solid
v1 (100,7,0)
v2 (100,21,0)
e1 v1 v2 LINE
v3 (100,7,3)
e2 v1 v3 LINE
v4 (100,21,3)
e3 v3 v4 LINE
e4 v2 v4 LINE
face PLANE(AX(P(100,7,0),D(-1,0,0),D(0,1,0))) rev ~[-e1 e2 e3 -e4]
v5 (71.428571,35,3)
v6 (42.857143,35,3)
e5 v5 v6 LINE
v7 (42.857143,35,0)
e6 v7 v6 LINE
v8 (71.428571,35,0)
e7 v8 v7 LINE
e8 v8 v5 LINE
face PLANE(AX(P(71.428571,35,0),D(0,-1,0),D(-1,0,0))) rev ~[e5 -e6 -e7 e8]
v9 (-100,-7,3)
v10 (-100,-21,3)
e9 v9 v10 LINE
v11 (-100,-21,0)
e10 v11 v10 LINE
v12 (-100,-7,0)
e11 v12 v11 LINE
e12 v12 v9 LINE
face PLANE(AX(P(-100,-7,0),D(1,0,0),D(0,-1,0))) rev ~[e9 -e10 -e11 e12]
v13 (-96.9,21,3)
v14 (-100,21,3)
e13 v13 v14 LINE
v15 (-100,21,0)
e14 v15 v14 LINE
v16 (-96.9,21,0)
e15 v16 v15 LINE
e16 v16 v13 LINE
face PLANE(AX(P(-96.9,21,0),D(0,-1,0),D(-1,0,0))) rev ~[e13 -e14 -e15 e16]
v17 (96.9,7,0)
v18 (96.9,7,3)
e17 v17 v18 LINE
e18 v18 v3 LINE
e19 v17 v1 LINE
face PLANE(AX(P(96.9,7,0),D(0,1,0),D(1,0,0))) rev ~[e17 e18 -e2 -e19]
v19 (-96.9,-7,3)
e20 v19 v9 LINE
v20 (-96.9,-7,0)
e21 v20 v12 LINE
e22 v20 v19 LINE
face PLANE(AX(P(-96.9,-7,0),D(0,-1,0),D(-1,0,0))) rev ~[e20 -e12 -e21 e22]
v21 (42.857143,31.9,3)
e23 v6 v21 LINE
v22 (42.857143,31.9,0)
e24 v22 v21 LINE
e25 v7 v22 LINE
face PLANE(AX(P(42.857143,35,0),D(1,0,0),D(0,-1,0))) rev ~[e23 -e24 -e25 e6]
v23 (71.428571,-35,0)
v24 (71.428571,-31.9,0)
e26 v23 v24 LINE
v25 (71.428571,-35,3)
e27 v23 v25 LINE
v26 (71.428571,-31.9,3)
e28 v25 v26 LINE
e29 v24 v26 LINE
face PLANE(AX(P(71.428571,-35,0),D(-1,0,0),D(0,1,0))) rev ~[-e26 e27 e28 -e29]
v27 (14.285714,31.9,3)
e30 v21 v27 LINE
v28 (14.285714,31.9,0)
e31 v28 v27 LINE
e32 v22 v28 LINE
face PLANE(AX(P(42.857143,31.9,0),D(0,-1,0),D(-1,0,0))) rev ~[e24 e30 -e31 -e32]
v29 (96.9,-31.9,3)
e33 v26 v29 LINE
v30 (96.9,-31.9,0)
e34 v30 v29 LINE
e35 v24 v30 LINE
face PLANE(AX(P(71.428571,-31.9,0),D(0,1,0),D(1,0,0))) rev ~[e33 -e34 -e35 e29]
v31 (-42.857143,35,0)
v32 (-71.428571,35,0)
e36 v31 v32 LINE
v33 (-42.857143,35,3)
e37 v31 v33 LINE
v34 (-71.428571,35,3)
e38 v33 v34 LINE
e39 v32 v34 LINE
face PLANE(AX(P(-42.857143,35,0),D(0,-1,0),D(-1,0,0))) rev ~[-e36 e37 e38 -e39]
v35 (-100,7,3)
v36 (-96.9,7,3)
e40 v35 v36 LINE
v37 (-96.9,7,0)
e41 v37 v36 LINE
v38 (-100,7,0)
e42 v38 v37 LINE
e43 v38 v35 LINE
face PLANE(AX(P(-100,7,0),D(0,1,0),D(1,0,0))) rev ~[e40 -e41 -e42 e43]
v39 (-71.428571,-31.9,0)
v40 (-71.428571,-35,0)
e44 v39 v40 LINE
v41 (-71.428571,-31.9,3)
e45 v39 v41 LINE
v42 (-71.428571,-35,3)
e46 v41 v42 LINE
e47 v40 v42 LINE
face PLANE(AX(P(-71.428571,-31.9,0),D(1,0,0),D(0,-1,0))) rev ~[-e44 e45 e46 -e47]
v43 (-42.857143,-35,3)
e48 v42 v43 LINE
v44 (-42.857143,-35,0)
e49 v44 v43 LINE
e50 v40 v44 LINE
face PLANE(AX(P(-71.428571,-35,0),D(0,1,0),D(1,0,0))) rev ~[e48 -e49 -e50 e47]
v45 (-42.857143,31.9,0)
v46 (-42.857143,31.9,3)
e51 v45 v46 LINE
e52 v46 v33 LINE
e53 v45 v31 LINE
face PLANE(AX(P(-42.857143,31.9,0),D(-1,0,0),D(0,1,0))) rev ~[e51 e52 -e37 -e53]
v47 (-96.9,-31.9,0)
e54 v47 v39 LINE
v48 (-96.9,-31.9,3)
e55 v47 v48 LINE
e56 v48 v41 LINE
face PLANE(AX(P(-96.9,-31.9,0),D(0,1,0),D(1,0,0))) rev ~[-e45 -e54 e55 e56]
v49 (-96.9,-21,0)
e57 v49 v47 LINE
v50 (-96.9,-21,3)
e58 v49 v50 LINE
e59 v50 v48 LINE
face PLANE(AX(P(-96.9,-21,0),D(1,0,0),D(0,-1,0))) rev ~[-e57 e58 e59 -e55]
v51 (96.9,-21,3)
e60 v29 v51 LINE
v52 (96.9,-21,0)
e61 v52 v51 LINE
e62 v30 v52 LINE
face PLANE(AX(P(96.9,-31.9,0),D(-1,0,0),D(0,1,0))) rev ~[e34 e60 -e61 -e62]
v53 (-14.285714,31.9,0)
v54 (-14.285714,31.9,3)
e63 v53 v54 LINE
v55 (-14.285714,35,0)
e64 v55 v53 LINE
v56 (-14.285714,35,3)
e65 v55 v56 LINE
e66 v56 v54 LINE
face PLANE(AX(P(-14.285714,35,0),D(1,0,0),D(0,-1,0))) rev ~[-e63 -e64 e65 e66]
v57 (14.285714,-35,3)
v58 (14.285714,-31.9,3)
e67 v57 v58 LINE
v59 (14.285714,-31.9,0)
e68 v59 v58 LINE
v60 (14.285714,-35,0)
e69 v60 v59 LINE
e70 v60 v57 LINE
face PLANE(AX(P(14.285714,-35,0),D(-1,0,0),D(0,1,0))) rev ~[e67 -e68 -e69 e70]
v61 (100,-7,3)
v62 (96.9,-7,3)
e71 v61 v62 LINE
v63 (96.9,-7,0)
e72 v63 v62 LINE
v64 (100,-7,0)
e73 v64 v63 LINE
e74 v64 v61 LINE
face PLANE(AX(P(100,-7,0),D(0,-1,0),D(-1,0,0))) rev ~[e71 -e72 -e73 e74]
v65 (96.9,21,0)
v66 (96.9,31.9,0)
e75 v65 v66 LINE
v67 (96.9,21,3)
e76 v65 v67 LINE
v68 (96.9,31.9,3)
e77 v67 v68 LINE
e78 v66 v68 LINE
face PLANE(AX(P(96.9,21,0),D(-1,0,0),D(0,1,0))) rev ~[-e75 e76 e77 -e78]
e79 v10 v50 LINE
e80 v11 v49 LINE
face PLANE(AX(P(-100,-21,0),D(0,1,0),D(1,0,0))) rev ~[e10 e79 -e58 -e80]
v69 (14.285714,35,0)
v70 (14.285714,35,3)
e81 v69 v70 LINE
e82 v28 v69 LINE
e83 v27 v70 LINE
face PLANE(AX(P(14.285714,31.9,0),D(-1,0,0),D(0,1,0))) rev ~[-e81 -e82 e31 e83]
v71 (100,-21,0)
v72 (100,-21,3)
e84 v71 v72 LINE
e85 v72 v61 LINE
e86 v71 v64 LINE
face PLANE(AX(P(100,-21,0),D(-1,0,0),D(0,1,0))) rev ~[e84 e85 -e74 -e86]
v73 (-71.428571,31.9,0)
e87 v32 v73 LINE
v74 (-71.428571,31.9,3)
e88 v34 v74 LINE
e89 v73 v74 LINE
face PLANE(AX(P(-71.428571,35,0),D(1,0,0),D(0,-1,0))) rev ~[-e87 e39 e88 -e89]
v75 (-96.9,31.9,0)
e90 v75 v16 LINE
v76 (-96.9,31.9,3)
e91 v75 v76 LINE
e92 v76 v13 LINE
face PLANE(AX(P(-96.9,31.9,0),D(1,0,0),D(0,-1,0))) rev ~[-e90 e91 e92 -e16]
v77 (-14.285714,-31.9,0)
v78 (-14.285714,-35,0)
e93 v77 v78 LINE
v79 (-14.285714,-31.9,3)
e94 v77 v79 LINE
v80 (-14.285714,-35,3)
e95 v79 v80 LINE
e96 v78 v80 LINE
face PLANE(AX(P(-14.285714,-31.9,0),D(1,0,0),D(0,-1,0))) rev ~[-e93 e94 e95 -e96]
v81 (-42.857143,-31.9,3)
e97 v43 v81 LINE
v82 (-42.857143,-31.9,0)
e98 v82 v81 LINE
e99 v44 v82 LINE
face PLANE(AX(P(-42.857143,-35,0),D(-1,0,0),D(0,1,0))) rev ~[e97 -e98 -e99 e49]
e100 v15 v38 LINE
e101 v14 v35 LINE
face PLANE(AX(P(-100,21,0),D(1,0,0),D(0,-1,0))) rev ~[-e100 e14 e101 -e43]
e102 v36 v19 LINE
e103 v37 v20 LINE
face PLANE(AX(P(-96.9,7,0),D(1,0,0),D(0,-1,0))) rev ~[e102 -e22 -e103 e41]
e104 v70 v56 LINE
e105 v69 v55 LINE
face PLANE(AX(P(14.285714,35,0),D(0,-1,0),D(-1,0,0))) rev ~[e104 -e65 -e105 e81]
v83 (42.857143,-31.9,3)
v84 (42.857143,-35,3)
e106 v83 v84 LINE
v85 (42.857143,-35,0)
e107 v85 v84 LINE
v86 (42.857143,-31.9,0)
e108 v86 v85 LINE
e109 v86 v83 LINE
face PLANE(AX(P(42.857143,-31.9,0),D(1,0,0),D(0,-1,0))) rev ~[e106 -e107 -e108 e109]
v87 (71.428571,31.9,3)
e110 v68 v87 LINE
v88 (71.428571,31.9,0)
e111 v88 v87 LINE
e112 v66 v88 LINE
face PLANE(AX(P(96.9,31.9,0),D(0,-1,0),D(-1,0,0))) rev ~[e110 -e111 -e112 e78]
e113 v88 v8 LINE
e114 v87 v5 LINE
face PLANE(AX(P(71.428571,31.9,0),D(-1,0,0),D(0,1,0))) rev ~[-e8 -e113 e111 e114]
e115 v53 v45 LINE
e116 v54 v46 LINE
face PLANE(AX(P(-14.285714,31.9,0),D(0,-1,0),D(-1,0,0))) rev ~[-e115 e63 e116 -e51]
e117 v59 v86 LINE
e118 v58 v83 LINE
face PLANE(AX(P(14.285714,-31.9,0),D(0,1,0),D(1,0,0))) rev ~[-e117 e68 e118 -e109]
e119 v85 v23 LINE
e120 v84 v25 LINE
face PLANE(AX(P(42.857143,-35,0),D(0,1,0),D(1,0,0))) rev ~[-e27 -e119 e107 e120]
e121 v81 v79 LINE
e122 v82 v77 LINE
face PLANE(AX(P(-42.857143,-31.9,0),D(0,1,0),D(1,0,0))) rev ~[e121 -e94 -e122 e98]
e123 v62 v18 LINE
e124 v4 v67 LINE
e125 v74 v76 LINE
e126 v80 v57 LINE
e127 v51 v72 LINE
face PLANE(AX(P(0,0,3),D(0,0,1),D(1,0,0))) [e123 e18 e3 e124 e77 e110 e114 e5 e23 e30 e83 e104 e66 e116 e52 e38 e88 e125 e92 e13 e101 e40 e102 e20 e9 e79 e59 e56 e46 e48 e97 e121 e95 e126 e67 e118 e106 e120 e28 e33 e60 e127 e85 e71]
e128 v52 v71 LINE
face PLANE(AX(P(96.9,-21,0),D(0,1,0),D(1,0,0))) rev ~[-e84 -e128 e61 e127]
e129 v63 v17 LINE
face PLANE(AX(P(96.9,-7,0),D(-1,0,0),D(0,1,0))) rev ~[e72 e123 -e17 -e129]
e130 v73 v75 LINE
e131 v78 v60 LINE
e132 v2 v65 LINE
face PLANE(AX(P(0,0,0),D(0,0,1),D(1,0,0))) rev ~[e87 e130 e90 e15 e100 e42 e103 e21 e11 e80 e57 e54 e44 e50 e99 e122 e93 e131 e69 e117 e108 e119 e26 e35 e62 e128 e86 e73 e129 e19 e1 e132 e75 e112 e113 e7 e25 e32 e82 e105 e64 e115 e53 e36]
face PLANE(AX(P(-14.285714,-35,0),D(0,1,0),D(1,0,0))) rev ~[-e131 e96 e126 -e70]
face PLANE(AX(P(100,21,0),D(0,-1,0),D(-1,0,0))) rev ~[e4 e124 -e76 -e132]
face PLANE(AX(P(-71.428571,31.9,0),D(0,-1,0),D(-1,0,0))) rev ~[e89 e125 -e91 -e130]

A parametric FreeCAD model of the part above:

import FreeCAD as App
import Part
import Sketcher
from FreeCAD import Vector
Q = App.Units.Quantity

doc = App.newDocument("Part")
params = doc.addObject("Spreadsheet::Sheet", "Params")
for row, (alias, value) in enumerate([
    ("sketch1_height", "14 mm"),
    ("sketch1_width", "3.1 mm"),
    ("sketch1_height2", "10.9 mm"),
    ("pad1_length", "3 mm"),
], start=1):
    params.set(f"A{row}", alias)
    params.set(f"B{row}", "=" + value)
    params.setAlias(f"B{row}", alias)

body = doc.addObject("PartDesign::Body", "Body")

# Sketch on XY plane
sketch1 = body.newObject("Sketcher::SketchObject", "Sketch")
sketch1.AttachmentSupport = (doc.getObject("XY_Plane"), [""])
sketch1.MapMode = "FlatFace"
sketch1.addGeometry(Part.LineSegment(Vector(-71.4, -31.9, 0), Vector(-71.4, -35, 0)), False)
sketch1.addGeometry(Part.LineSegment(Vector(-71.4, -35, 0), Vector(-42.9, -35, 0)), False)
sketch1.addGeometry(Part.LineSegment(Vector(-42.9, -35, 0), Vector(-42.9, -31.9, 0)), False)
sketch1.addGeometry(Part.LineSegment(Vector(-42.9, -31.9, 0), Vector(-14.3, -31.9, 0)), False)
sketch1.addGeometry(Part.LineSegment(Vector(-14.3, -31.9, 0), Vector(-14.3, -35, 0)), False)
sketch1.addGeometry(Part.LineSegment(Vector(-14.3, -35, 0), Vector(14.3, -35, 0)), False)
sketch1.addGeometry(Part.LineSegment(Vector(14.3, -35, 0), Vector(14.3, -31.9, 0)), False)
sketch1.addGeometry(Part.LineSegment(Vector(14.3, -31.9, 0), Vector(42.9, -31.9, 0)), False)
sketch1.addGeometry(Part.LineSegment(Vector(42.9, -31.9, 0), Vector(42.9, -35, 0)), False)
sketch1.addGeometry(Part.LineSegment(Vector(42.9, -35, 0), Vector(71.4, -35, 0)), False)
sketch1.addGeometry(Part.LineSegment(Vector(71.4, -35, 0), Vector(71.4, -31.9, 0)), False)
sketch1.addGeometry(Part.LineSegment(Vector(71.4, -31.9, 0), Vector(96.9, -31.9, 0)), False)
sketch1.addGeometry(Part.LineSegment(Vector(96.9, -31.9, 0), Vector(96.9, -21, 0)), False)
sketch1.addGeometry(Part.LineSegment(Vector(96.9, -21, 0), Vector(100, -21, 0)), False)
sketch1.addGeometry(Part.LineSegment(Vector(100, -21, 0), Vector(100, -7, 0)), False)
sketch1.addGeometry(Part.LineSegment(Vector(100, -7, 0), Vector(96.9, -7, 0)), False)
sketch1.addGeometry(Part.LineSegment(Vector(96.9, -7, 0), Vector(96.9, 7, 0)), False)
sketch1.addGeometry(Part.LineSegment(Vector(96.9, 7, 0), Vector(100, 7, 0)), False)
sketch1.addGeometry(Part.LineSegment(Vector(100, 7, 0), Vector(100, 21, 0)), False)
sketch1.addGeometry(Part.LineSegment(Vector(100, 21, 0), Vector(96.9, 21, 0)), False)
sketch1.addGeometry(Part.LineSegment(Vector(96.9, 21, 0), Vector(96.9, 31.9, 0)), False)
sketch1.addGeometry(Part.LineSegment(Vector(96.9, 31.9, 0), Vector(71.4, 31.9, 0)), False)
sketch1.addGeometry(Part.LineSegment(Vector(71.4, 31.9, 0), Vector(71.4, 35, 0)), False)
sketch1.addGeometry(Part.LineSegment(Vector(71.4, 35, 0), Vector(42.9, 35, 0)), False)
sketch1.addGeometry(Part.LineSegment(Vector(42.9, 35, 0), Vector(42.9, 31.9, 0)), False)
sketch1.addGeometry(Part.LineSegment(Vector(42.9, 31.9, 0), Vector(14.3, 31.9, 0)), False)
sketch1.addGeometry(Part.LineSegment(Vector(14.3, 31.9, 0), Vector(14.3, 35, 0)), False)
sketch1.addGeometry(Part.LineSegment(Vector(14.3, 35, 0), Vector(-14.3, 35, 0)), False)
sketch1.addGeometry(Part.LineSegment(Vector(-14.3, 35, 0), Vector(-14.3, 31.9, 0)), False)
sketch1.addGeometry(Part.LineSegment(Vector(-14.3, 31.9, 0), Vector(-42.9, 31.9, 0)), False)
sketch1.addGeometry(Part.LineSegment(Vector(-42.9, 31.9, 0), Vector(-42.9, 35, 0)), False)
sketch1.addGeometry(Part.LineSegment(Vector(-42.9, 35, 0), Vector(-71.4, 35, 0)), False)
sketch1.addGeometry(Part.LineSegment(Vector(-71.4, 35, 0), Vector(-71.4, 31.9, 0)), False)
sketch1.addGeometry(Part.LineSegment(Vector(-71.4, 31.9, 0), Vector(-96.9, 31.9, 0)), False)
sketch1.addGeometry(Part.LineSegment(Vector(-96.9, 31.9, 0), Vector(-96.9, 21, 0)), False)
sketch1.addGeometry(Part.LineSegment(Vector(-96.9, 21, 0), Vector(-100, 21, 0)), False)
sketch1.addGeometry(Part.LineSegment(Vector(-100, 21, 0), Vector(-100, 7, 0)), False)
sketch1.addGeometry(Part.LineSegment(Vector(-100, 7, 0), Vector(-96.9, 7, 0)), False)
sketch1.addGeometry(Part.LineSegment(Vector(-96.9, 7, 0), Vector(-96.9, -7, 0)), False)
sketch1.addGeometry(Part.LineSegment(Vector(-96.9, -7, 0), Vector(-100, -7, 0)), False)
sketch1.addGeometry(Part.LineSegment(Vector(-100, -7, 0), Vector(-100, -21, 0)), False)
sketch1.addGeometry(Part.LineSegment(Vector(-100, -21, 0), Vector(-96.9, -21, 0)), False)
sketch1.addGeometry(Part.LineSegment(Vector(-96.9, -21, 0), Vector(-96.9, -31.9, 0)), False)
sketch1.addGeometry(Part.LineSegment(Vector(-96.9, -31.9, 0), Vector(-71.4, -31.9, 0)), False)
sketch1.addConstraint(Sketcher.Constraint("Coincident", 0, 2, 1, 1))
sketch1.addConstraint(Sketcher.Constraint("Coincident", 1, 2, 2, 1))
sketch1.addConstraint(Sketcher.Constraint("Coincident", 2, 2, 3, 1))
sketch1.addConstraint(Sketcher.Constraint("Coincident", 3, 2, 4, 1))
sketch1.addConstraint(Sketcher.Constraint("Coincident", 4, 2, 5, 1))
sketch1.addConstraint(Sketcher.Constraint("Coincident", 5, 2, 6, 1))
sketch1.addConstraint(Sketcher.Constraint("Coincident", 6, 2, 7, 1))
sketch1.addConstraint(Sketcher.Constraint("Coincident", 7, 2, 8, 1))
sketch1.addConstraint(Sketcher.Constraint("Coincident", 8, 2, 9, 1))
sketch1.addConstraint(Sketcher.Constraint("Coincident", 9, 2, 10, 1))
sketch1.addConstraint(Sketcher.Constraint("Coincident", 10, 2, 11, 1))
sketch1.addConstraint(Sketcher.Constraint("Coincident", 11, 2, 12, 1))
sketch1.addConstraint(Sketcher.Constraint("Coincident", 12, 2, 13, 1))
sketch1.addConstraint(Sketcher.Constraint("Coincident", 13, 2, 14, 1))
sketch1.addConstraint(Sketcher.Constraint("Coincident", 14, 2, 15, 1))
sketch1.addConstraint(Sketcher.Constraint("Coincident", 15, 2, 16, 1))
sketch1.addConstraint(Sketcher.Constraint("Coincident", 16, 2, 17, 1))
sketch1.addConstraint(Sketcher.Constraint("Coincident", 17, 2, 18, 1))
sketch1.addConstraint(Sketcher.Constraint("Coincident", 18, 2, 19, 1))
sketch1.addConstraint(Sketcher.Constraint("Coincident", 19, 2, 20, 1))
sketch1.addConstraint(Sketcher.Constraint("Coincident", 20, 2, 21, 1))
sketch1.addConstraint(Sketcher.Constraint("Coincident", 21, 2, 22, 1))
sketch1.addConstraint(Sketcher.Constraint("Coincident", 22, 2, 23, 1))
sketch1.addConstraint(Sketcher.Constraint("Coincident", 23, 2, 24, 1))
sketch1.addConstraint(Sketcher.Constraint("Coincident", 24, 2, 25, 1))
sketch1.addConstraint(Sketcher.Constraint("Coincident", 25, 2, 26, 1))
sketch1.addConstraint(Sketcher.Constraint("Coincident", 26, 2, 27, 1))
sketch1.addConstraint(Sketcher.Constraint("Coincident", 27, 2, 28, 1))
sketch1.addConstraint(Sketcher.Constraint("Coincident", 28, 2, 29, 1))
sketch1.addConstraint(Sketcher.Constraint("Coincident", 29, 2, 30, 1))
sketch1.addConstraint(Sketcher.Constraint("Coincident", 30, 2, 31, 1))
sketch1.addConstraint(Sketcher.Constraint("Coincident", 31, 2, 32, 1))
sketch1.addConstraint(Sketcher.Constraint("Coincident", 32, 2, 33, 1))
sketch1.addConstraint(Sketcher.Constraint("Coincident", 33, 2, 34, 1))
sketch1.addConstraint(Sketcher.Constraint("Coincident", 34, 2, 35, 1))
sketch1.addConstraint(Sketcher.Constraint("Coincident", 35, 2, 36, 1))
sketch1.addConstraint(Sketcher.Constraint("Coincident", 36, 2, 37, 1))
sketch1.addConstraint(Sketcher.Constraint("Coincident", 37, 2, 38, 1))
sketch1.addConstraint(Sketcher.Constraint("Coincident", 38, 2, 39, 1))
sketch1.addConstraint(Sketcher.Constraint("Coincident", 39, 2, 40, 1))
sketch1.addConstraint(Sketcher.Constraint("Coincident", 40, 2, 41, 1))
sketch1.addConstraint(Sketcher.Constraint("Coincident", 41, 2, 42, 1))
sketch1.addConstraint(Sketcher.Constraint("Coincident", 42, 2, 43, 1))
sketch1.addConstraint(Sketcher.Constraint("Coincident", 43, 2, 0, 1))
sketch1.addConstraint(Sketcher.Constraint("Vertical", 0))
sketch1.addConstraint(Sketcher.Constraint("Horizontal", 1))
sketch1.addConstraint(Sketcher.Constraint("Vertical", 2))
sketch1.addConstraint(Sketcher.Constraint("Horizontal", 3))
sketch1.addConstraint(Sketcher.Constraint("Vertical", 4))
sketch1.addConstraint(Sketcher.Constraint("Horizontal", 5))
sketch1.addConstraint(Sketcher.Constraint("Vertical", 6))
sketch1.addConstraint(Sketcher.Constraint("Horizontal", 7))
sketch1.addConstraint(Sketcher.Constraint("Vertical", 8))
sketch1.addConstraint(Sketcher.Constraint("Horizontal", 9))
sketch1.addConstraint(Sketcher.Constraint("Vertical", 10))
sketch1.addConstraint(Sketcher.Constraint("Horizontal", 11))
sketch1.addConstraint(Sketcher.Constraint("Vertical", 12))
sketch1.addConstraint(Sketcher.Constraint("Horizontal", 13))
sketch1.addConstraint(Sketcher.Constraint("Vertical", 14))
sketch1.addConstraint(Sketcher.Constraint("Horizontal", 15))
sketch1.addConstraint(Sketcher.Constraint("Vertical", 16))
sketch1.addConstraint(Sketcher.Constraint("Horizontal", 17))
sketch1.addConstraint(Sketcher.Constraint("Vertical", 18))
sketch1.addConstraint(Sketcher.Constraint("Horizontal", 19))
sketch1.addConstraint(Sketcher.Constraint("Vertical", 20))
sketch1.addConstraint(Sketcher.Constraint("Horizontal", 21))
sketch1.addConstraint(Sketcher.Constraint("Vertical", 22))
sketch1.addConstraint(Sketcher.Constraint("Horizontal", 23))
sketch1.addConstraint(Sketcher.Constraint("Vertical", 24))
sketch1.addConstraint(Sketcher.Constraint("Horizontal", 25))
sketch1.addConstraint(Sketcher.Constraint("Vertical", 26))
sketch1.addConstraint(Sketcher.Constraint("Horizontal", 27))
sketch1.addConstraint(Sketcher.Constraint("Vertical", 28))
sketch1.addConstraint(Sketcher.Constraint("Horizontal", 29))
sketch1.addConstraint(Sketcher.Constraint("Vertical", 30))
sketch1.addConstraint(Sketcher.Constraint("Horizontal", 31))
sketch1.addConstraint(Sketcher.Constraint("Vertical", 32))
sketch1.addConstraint(Sketcher.Constraint("Horizontal", 33))
sketch1.addConstraint(Sketcher.Constraint("Vertical", 34))
sketch1.addConstraint(Sketcher.Constraint("Horizontal", 35))
sketch1.addConstraint(Sketcher.Constraint("Vertical", 36))
sketch1.addConstraint(Sketcher.Constraint("Horizontal", 37))
sketch1.addConstraint(Sketcher.Constraint("Vertical", 38))
sketch1.addConstraint(Sketcher.Constraint("Horizontal", 39))
sketch1.addConstraint(Sketcher.Constraint("Vertical", 40))
sketch1.addConstraint(Sketcher.Constraint("Horizontal", 41))
sketch1.addConstraint(Sketcher.Constraint("Vertical", 42))
sketch1.addConstraint(Sketcher.Constraint("Horizontal", 43))
sketch1.addConstraint(Sketcher.Constraint("Symmetric", 0, 2, 22, 2, -1, 1))
sketch1.addConstraint(Sketcher.Constraint("Symmetric", 2, 2, 24, 2, -1, 1))
sketch1.addConstraint(Sketcher.Constraint("Symmetric", 4, 2, 26, 2, -1, 1))
sketch1.addConstraint(Sketcher.Constraint("Symmetric", 6, 2, 28, 2, -1, 1))
sketch1.addConstraint(Sketcher.Constraint("Symmetric", 8, 2, 30, 2, -1, 1))
sketch1.addConstraint(Sketcher.Constraint("Symmetric", 10, 2, 32, 2, -1, 1))
sketch1.addConstraint(Sketcher.Constraint("Symmetric", 12, 2, 34, 2, -1, 1))
sketch1.addConstraint(Sketcher.Constraint("Symmetric", 14, 2, 36, 2, -1, 1))
sketch1.addConstraint(Sketcher.Constraint("Symmetric", 16, 2, 38, 2, -1, 1))
sketch1.addConstraint(Sketcher.Constraint("Symmetric", 18, 2, 40, 2, -1, 1))
sketch1.addConstraint(Sketcher.Constraint("Symmetric", 20, 2, 42, 2, -1, 1))
sketch1.addConstraint(Sketcher.Constraint("Symmetric", 3, 2, 6, 2, -2))
sketch1.addConstraint(Sketcher.Constraint("Symmetric", 1, 2, 8, 2, -2))
sketch1.addConstraint(Sketcher.Constraint("Symmetric", 21, 2, 32, 2, -2))
sketch1.addConstraint(Sketcher.Constraint("Symmetric", 19, 2, 34, 2, -2))
sketch1.addConstraint(Sketcher.Constraint("Symmetric", 17, 2, 36, 2, -2))
sketch1.addConstraint(Sketcher.Constraint("Horizontal", 1, 2, 4, 2))
sketch1.addConstraint(Sketcher.Constraint("Horizontal", 7, 2, 10, 2))
sketch1.addConstraint(Sketcher.Constraint("Vertical", 12, 2, 15, 2))
sketch1.addConstraint(Sketcher.Constraint("Equal", 1, 3))
sketch1.addConstraint(Sketcher.Constraint("Equal", 3, 5))
sketch1.addConstraint(Sketcher.Constraint("Equal", 41, 0))
sketch1.addConstraint(Sketcher.Constraint("Equal", 14, 16))
sketch1.addConstraint(Sketcher.Constraint("DistanceY", 14, 1, 14, 2, Q("14 mm")))
sketch1.addConstraint(Sketcher.Constraint("DistanceX", 13, 1, 13, 2, Q("3.1 mm")))
sketch1.addConstraint(Sketcher.Constraint("DistanceY", 12, 1, 12, 2, Q("10.9 mm")))
sketch1.addConstraint(Sketcher.Constraint("DistanceX", -1, 1, 13, 2, Q("100 mm")))
sketch1.addConstraint(Sketcher.Constraint("DistanceX", 1, 1, 1, 2, Q("28.571429 mm")))
sketch1.setExpression("Constraints[111]", "Params.sketch1_height")
sketch1.setExpression("Constraints[112]", "Params.sketch1_width")
sketch1.setExpression("Constraints[113]", "Params.sketch1_height2")
pad1 = body.newObject("PartDesign::Pad", "Pad")
pad1.Profile = sketch1
pad1.setExpression("Length", "Params.pad1_length")

doc.recompute()
